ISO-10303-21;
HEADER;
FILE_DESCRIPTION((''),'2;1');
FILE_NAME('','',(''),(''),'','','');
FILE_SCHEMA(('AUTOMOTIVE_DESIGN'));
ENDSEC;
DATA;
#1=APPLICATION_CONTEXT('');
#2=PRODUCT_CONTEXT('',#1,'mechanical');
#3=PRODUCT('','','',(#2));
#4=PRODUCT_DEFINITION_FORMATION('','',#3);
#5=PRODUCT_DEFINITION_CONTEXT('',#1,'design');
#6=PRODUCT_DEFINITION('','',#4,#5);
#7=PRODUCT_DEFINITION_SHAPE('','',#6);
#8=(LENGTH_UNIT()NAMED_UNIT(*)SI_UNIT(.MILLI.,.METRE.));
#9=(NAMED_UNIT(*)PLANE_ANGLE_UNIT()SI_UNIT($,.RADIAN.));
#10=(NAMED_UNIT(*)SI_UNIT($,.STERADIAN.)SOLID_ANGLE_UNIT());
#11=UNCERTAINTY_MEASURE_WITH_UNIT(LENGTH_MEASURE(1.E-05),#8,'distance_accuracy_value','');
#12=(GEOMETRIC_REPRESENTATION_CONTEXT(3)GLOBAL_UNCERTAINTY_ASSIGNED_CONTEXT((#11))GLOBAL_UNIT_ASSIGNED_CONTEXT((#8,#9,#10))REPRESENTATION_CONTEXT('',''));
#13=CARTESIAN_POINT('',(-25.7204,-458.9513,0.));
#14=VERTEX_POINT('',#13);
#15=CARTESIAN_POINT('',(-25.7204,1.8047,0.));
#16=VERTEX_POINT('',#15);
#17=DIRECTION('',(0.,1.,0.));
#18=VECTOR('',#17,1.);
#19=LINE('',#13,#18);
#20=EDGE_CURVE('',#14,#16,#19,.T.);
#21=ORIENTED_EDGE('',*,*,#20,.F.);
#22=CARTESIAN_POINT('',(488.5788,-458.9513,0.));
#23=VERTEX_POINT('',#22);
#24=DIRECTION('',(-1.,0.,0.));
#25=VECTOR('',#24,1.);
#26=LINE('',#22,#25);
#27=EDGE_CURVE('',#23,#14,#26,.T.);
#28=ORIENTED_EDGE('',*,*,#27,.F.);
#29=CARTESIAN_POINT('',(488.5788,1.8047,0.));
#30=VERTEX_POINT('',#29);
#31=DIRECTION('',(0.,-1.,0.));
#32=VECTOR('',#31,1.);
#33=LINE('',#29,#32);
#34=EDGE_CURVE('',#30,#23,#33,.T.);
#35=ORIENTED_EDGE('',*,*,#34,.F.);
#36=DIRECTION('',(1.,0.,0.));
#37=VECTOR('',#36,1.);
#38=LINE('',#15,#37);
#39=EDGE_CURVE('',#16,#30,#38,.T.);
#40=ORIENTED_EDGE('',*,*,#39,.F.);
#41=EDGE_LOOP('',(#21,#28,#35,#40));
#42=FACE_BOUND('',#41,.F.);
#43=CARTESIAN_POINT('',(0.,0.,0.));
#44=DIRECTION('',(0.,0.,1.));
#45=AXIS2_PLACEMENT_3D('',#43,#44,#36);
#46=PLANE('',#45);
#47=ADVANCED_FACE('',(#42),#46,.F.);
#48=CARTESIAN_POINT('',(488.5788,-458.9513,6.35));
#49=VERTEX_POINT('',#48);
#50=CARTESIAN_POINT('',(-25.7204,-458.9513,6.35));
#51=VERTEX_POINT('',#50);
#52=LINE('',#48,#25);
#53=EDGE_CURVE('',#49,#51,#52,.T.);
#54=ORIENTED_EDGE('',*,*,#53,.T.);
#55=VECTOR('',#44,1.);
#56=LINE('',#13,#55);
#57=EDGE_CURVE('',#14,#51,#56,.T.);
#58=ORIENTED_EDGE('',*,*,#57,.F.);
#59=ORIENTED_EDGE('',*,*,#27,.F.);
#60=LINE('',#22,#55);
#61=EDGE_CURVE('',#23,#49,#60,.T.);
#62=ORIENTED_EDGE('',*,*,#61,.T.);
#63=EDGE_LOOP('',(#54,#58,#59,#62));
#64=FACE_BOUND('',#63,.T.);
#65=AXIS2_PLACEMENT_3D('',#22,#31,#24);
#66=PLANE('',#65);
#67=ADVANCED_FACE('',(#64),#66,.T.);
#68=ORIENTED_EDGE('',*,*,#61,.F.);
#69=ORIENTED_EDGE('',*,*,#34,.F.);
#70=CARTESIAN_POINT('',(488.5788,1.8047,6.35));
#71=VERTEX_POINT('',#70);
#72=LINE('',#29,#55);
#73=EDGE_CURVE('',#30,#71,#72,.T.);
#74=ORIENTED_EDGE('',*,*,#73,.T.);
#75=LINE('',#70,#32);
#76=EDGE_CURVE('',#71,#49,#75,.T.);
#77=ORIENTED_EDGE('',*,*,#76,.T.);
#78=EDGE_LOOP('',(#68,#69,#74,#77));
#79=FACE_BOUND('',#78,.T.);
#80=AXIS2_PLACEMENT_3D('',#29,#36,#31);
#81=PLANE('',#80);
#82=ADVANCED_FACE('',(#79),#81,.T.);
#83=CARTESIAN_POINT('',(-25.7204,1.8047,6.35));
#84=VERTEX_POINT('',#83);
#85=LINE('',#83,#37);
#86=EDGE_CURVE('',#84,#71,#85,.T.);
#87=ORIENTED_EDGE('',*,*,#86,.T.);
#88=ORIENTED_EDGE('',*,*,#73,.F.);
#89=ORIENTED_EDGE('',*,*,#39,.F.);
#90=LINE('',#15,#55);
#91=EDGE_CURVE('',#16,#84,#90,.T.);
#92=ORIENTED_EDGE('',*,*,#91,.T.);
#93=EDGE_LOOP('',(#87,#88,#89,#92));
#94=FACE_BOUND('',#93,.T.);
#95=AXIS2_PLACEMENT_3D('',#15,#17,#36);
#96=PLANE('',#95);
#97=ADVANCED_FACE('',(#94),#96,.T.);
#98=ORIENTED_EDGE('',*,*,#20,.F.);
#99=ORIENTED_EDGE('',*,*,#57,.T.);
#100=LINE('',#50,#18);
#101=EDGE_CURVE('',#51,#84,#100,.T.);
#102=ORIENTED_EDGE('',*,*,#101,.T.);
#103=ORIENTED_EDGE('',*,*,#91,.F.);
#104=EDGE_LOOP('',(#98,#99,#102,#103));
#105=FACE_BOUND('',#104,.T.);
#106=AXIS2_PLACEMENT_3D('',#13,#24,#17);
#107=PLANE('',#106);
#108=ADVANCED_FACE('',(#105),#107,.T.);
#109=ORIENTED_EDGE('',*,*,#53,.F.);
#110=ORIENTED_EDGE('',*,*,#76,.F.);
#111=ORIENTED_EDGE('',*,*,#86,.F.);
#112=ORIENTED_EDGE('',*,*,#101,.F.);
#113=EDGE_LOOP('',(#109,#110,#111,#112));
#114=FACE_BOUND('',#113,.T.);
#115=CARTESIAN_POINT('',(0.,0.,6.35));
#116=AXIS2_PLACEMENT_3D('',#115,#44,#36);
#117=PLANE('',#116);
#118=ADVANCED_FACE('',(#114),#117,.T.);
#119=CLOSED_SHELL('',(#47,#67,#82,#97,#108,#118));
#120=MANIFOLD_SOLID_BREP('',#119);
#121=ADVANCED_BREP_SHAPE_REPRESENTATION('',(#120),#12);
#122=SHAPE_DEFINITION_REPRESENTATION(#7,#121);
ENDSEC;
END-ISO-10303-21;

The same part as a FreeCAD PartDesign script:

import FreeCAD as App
import Part
import Sketcher
from FreeCAD import Vector
Q = App.Units.Quantity

doc = App.newDocument("Part")
params = doc.addObject("Spreadsheet::Sheet", "Params")
for row, (alias, value) in enumerate([
    ("sketch1_height", "18.14 in"),
    ("sketch1_width", "20.248 in"),
    ("pad1_length", "0.25 in"),
], start=1):
    params.set(f"A{row}", alias)
    params.set(f"B{row}", "=" + value)
    params.setAlias(f"B{row}", alias)

body = doc.addObject("PartDesign::Body", "Body")

# Sketch on XY plane
sketch1 = body.newObject("Sketcher::SketchObject", "Sketch")
sketch1.AttachmentSupport = (doc.getObject("XY_Plane"), [""])
sketch1.MapMode = "FlatFace"
sketch1.addGeometry([
    Part.LineSegment(Vector(489, 2, 0), Vector(-26, 2, 0)),
    Part.LineSegment(Vector(-26, 2, 0), Vector(-26, -459, 0)),
    Part.LineSegment(Vector(-26, -459, 0), Vector(489, -459, 0)),
    Part.LineSegment(Vector(489, -459, 0), Vector(489, 2, 0)),
], False)
sketch1.addConstraint([
    Sketcher.Constraint("Coincident", 0, 2, 1, 1),
    Sketcher.Constraint("Coincident", 1, 2, 2, 1),
    Sketcher.Constraint("Coincident", 2, 2, 3, 1),
    Sketcher.Constraint("Coincident", 3, 2, 0, 1),
    Sketcher.Constraint("Horizontal", 0),
    Sketcher.Constraint("Vertical", 1),
    Sketcher.Constraint("Horizontal", 2),
    Sketcher.Constraint("Vertical", 3),
    Sketcher.Constraint("DistanceY", 1, 2, 1, 1, Q("18.14 in")),
    Sketcher.Constraint("DistanceX", 0, 2, 0, 1, Q("20.248 in")),
    Sketcher.Constraint("DistanceX", 0, 2, -1, 1, Q("25.7204 mm")),
    Sketcher.Constraint("DistanceY", -1, 1, 0, 2, Q("1.8047 mm")),
])
sketch1.setExpression("Constraints[8]", "Params.sketch1_height")
sketch1.setExpression("Constraints[9]", "Params.sketch1_width")
pad1 = body.newObject("PartDesign::Pad", "Pad")
pad1.Profile = sketch1
pad1.setExpression("Length", "Params.pad1_length")

doc.recompute()
